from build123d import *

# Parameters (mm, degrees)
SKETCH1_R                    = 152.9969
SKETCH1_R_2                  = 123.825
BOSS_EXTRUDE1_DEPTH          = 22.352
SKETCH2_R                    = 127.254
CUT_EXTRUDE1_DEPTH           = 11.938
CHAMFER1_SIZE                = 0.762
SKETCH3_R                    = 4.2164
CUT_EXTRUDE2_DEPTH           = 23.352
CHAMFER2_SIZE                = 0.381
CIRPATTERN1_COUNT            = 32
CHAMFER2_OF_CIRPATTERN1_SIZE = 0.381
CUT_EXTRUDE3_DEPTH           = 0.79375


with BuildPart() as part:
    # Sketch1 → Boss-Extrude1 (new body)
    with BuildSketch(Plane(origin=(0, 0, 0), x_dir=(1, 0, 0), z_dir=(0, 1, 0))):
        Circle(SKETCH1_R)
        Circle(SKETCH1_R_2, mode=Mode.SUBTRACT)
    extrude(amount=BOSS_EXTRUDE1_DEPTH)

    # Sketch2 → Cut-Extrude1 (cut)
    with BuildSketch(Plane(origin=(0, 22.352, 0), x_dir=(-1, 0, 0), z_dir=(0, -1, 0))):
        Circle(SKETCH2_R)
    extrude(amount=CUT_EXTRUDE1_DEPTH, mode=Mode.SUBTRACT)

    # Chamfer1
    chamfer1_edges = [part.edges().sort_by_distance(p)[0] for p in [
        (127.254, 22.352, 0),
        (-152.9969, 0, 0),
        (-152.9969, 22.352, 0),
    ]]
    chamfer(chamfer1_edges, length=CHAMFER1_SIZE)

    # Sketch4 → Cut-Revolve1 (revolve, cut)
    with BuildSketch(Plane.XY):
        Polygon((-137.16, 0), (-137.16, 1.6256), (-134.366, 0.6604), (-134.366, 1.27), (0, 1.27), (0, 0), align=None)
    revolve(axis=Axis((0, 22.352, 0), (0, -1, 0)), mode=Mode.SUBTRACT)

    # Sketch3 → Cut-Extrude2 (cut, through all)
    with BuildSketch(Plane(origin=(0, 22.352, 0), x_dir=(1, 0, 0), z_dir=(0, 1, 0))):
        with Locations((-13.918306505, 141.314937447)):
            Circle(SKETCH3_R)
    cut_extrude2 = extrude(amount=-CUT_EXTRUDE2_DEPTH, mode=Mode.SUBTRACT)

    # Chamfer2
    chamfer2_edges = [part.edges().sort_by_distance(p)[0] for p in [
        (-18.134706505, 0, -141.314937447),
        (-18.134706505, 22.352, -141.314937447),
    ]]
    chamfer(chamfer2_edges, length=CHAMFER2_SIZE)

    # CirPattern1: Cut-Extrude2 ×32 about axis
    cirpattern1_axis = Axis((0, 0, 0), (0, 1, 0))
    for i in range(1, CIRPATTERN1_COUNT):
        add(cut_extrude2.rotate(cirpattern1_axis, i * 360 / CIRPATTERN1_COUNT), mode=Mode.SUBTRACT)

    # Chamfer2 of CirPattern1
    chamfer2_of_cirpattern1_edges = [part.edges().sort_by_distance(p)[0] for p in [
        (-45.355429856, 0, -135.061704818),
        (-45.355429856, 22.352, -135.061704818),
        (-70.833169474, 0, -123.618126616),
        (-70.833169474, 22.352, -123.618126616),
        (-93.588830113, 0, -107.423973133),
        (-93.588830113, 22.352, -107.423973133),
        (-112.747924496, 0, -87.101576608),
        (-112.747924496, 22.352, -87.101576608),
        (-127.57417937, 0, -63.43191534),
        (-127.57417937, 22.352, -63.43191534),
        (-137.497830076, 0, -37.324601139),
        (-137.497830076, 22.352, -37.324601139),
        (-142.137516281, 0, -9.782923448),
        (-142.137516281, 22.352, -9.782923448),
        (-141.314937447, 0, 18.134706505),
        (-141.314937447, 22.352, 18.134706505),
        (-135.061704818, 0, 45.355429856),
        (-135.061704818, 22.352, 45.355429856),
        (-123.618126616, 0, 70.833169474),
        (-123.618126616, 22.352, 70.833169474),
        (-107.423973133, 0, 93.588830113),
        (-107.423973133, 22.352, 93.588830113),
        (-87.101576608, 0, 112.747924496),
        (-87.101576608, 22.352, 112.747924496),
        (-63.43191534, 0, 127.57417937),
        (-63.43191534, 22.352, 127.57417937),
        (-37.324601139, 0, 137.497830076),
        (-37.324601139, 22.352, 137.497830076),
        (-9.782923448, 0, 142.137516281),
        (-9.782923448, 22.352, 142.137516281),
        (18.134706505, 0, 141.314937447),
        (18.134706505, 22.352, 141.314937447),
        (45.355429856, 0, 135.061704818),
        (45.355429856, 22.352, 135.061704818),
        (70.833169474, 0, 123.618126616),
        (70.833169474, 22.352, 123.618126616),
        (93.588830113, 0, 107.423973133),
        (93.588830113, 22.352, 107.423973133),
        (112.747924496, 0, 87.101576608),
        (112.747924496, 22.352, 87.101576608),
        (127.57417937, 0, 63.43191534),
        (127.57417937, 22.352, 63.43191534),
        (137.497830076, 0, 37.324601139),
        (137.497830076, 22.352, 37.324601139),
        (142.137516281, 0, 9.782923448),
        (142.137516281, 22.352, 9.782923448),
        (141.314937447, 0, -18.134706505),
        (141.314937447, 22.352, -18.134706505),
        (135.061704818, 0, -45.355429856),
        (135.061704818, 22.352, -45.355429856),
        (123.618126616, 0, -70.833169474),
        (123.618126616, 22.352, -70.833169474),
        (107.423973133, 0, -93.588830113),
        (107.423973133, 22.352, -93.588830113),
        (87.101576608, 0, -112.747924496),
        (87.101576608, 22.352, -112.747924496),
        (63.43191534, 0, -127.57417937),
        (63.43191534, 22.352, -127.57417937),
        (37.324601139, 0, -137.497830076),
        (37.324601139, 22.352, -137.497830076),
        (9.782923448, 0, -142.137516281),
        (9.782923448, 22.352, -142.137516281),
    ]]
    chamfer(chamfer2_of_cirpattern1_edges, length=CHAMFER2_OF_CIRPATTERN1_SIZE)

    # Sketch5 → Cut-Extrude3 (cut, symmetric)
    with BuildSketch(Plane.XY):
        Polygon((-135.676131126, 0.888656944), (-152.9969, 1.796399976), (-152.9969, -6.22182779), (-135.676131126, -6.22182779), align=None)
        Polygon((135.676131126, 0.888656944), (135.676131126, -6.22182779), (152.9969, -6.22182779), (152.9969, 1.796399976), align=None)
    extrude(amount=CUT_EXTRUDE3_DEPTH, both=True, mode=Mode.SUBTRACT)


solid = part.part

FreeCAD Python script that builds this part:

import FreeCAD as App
import Part
import Sketcher
Q = App.Units.Quantity


def edges_at(feature, points):
    """Names of the edges that pass closest to the given points."""
    edges = feature.Shape.Edges
    near = lambda p: min(range(len(edges)), key=lambda i: edges[i].distToShape(Part.Vertex(*p))[0])
    return sorted({f"Edge{near(p) + 1}" for p in points})

doc = App.newDocument("Part")
body = doc.addObject("PartDesign::Body", "Body")

# Sketch on XZ plane
sketch1 = body.newObject("Sketcher::SketchObject", "Sketch")
sketch1.AttachmentSupport = (doc.getObject("XZ_Plane"), [""])
sketch1.MapMode = "FlatFace"
sketch1.addGeometry(Part.Circle(App.Vector(0, 0, 0), App.Vector(0, 0, 1), 153), False)
sketch1.addGeometry(Part.Circle(App.Vector(0, 0, 0), App.Vector(0, 0, 1), 124), False)
sketch1.addConstraint(Sketcher.Constraint("Coincident", 0, 3, -1, 1))
sketch1.addConstraint(Sketcher.Constraint("Coincident", 1, 3, -1, 1))
sketch1.addConstraint(Sketcher.Constraint("Diameter", 1, Q("9.75 in")))
sketch1.addConstraint(Sketcher.Constraint("Diameter", 0, Q("12.047 in")))
pad1 = body.newObject("PartDesign::Pad", "Pad")
pad1.Profile = sketch1
pad1.Length = Q("0.88 in")
pad1.Reversed = True

# Sketch on XZ plane
sketch2 = body.newObject("Sketcher::SketchObject", "Sketch001")
sketch2.AttachmentSupport = (doc.getObject("XZ_Plane"), [""])
sketch2.MapMode = "FlatFace"
sketch2.AttachmentOffset = App.Placement(App.Vector(0, 0, -0.88 * 25.4), App.Rotation())
sketch2.addGeometry(Part.Circle(App.Vector(0, 0, 0), App.Vector(0, 0, 1), 127), False)
sketch2.addConstraint(Sketcher.Constraint("Coincident", 0, 3, -1, 1))
sketch2.addConstraint(Sketcher.Constraint("Diameter", 0, Q("10.02 in")))
pocket1 = body.newObject("PartDesign::Pocket", "Pocket")
pocket1.Profile = sketch2
pocket1.Length = Q("0.47 in")
pocket1.Reversed = True
doc.recompute()

chamfer = body.newObject("PartDesign::Chamfer", "Chamfer")
chamfer.Base = (pocket1, edges_at(pocket1, [(127.254, 22.352, 0), (-152.997, 0, 0), (-152.997, 22.352, 0)]))
chamfer.Size = Q("0.03 in")

# Sketch on XY plane
sketch3 = body.newObject("Sketcher::SketchObject", "Sketch002")
sketch3.AttachmentSupport = (doc.getObject("XY_Plane"), [""])
sketch3.MapMode = "FlatFace"
sketch3.addGeometry(Part.LineSegment(App.Vector(-137.2, 1.6, 0), App.Vector(-137.2, 0, 0)), False)
sketch3.addGeometry(Part.LineSegment(App.Vector(-137.2, 0, 0), App.Vector(0, 0, 0)), False)
sketch3.addGeometry(Part.LineSegment(App.Vector(0, 0, 0), App.Vector(0, 1.3, 0)), False)
sketch3.addGeometry(Part.LineSegment(App.Vector(0, 1.3, 0), App.Vector(-134.4, 1.3, 0)), False)
sketch3.addGeometry(Part.LineSegment(App.Vector(-134.4, 1.3, 0), App.Vector(-134.4, 0.7, 0)), False)
sketch3.addGeometry(Part.LineSegment(App.Vector(-134.4, 0.7, 0), App.Vector(-137.2, 1.6, 0)), False)
sketch3.addConstraint(Sketcher.Constraint("Coincident", 0, 2, 1, 1))
sketch3.addConstraint(Sketcher.Constraint("Coincident", 1, 2, 2, 1))
sketch3.addConstraint(Sketcher.Constraint("Coincident", 2, 2, 3, 1))
sketch3.addConstraint(Sketcher.Constraint("Coincident", 3, 2, 4, 1))
sketch3.addConstraint(Sketcher.Constraint("Coincident", 4, 2, 5, 1))
sketch3.addConstraint(Sketcher.Constraint("Coincident", 5, 2, 0, 1))
sketch3.addConstraint(Sketcher.Constraint("Vertical", 0))
sketch3.addConstraint(Sketcher.Constraint("Horizontal", 1))
sketch3.addConstraint(Sketcher.Constraint("Vertical", 2))
sketch3.addConstraint(Sketcher.Constraint("Horizontal", 3))
sketch3.addConstraint(Sketcher.Constraint("Vertical", 4))
sketch3.addConstraint(Sketcher.Constraint("Coincident", 1, 2, -1, 1))
sketch3.addConstraint(Sketcher.Constraint("DistanceX", 1, 1, 1, 2, Q("5.4 in")))
sketch3.addConstraint(Sketcher.Constraint("DistanceX", 3, 2, 3, 1, Q("5.29 in")))
sketch3.addConstraint(Sketcher.Constraint("DistanceY", 2, 1, 2, 2, Q("0.05 in")))
sketch3.addConstraint(Sketcher.Constraint("DistanceY", 0, 2, 0, 1, Q("0.064 in")))
sketch3.addConstraint(Sketcher.Constraint("DistanceY", 4, 2, 4, 1, Q("0.024 in")))
groove = body.newObject("PartDesign::Groove", "Groove")
groove.Profile = sketch3
groove.ReferenceAxis = (sketch3, ["V_Axis"])
groove.Angle = 360

# Sketch on XZ plane
sketch4 = body.newObject("Sketcher::SketchObject", "Sketch003")
sketch4.AttachmentSupport = (doc.getObject("XZ_Plane"), [""])
sketch4.MapMode = "FlatFace"
sketch4.AttachmentOffset = App.Placement(App.Vector(0, 0, -0.88 * 25.4), App.Rotation())
sketch4.addGeometry(Part.Circle(App.Vector(-13.9, -141.3, 0), App.Vector(0, 0, 1), 4.2), False)
sketch4.addConstraint(Sketcher.Constraint("Diameter", 0, Q("0.332 in")))
sketch4.addConstraint(Sketcher.Constraint("DistanceX", 0, 3, -1, 1, 13.918307))
sketch4.addConstraint(Sketcher.Constraint("DistanceY", 0, 3, -1, 1, 141.314937))
pocket2 = body.newObject("PartDesign::Pocket", "Pocket001")
pocket2.Profile = sketch4
pocket2.Type = "ThroughAll"
pocket2.Reversed = True
doc.recompute()

chamfer2 = body.newObject("PartDesign::Chamfer", "Chamfer001")
chamfer2.Base = (pocket2, edges_at(pocket2, [(-18.135, 0, -141.315), (-18.135, 22.352, -141.315)]))
chamfer2.Size = Q("0.015 in")
doc.recompute()

polarpattern = body.newObject("PartDesign::PolarPattern", "PolarPattern")
polarpattern.Originals = [pocket2]
polarpattern.Axis = (doc.getObject("Y_Axis"), [""])
polarpattern.Angle = 360
polarpattern.Occurrences = 32
body.Tip = polarpattern
doc.recompute()

chamfer3 = body.newObject("PartDesign::Chamfer", "Chamfer002")
chamfer3.Base = (polarpattern, edges_at(polarpattern, [
    (-45.355, 0, -135.062),
    (-45.355, 22.352, -135.062),
    (-70.833, 0, -123.618),
    (-70.833, 22.352, -123.618),
    (-93.589, 0, -107.424),
    (-93.589, 22.352, -107.424),
    (-112.748, 0, -87.102),
    (-112.748, 22.352, -87.102),
    (-127.574, 0, -63.432),
    (-127.574, 22.352, -63.432),
    (-137.498, 0, -37.325),
    (-137.498, 22.352, -37.325),
    (-142.138, 0, -9.783),
    (-142.138, 22.352, -9.783),
    (-141.315, 0, 18.135),
    (-141.315, 22.352, 18.135),
    (-135.062, 0, 45.355),
    (-135.062, 22.352, 45.355),
    (-123.618, 0, 70.833),
    (-123.618, 22.352, 70.833),
    (-107.424, 0, 93.589),
    (-107.424, 22.352, 93.589),
    (-87.102, 0, 112.748),
    (-87.102, 22.352, 112.748),
    (-63.432, 0, 127.574),
    (-63.432, 22.352, 127.574),
    (-37.325, 0, 137.498),
    (-37.325, 22.352, 137.498),
    (-9.783, 0, 142.138),
    (-9.783, 22.352, 142.138),
    (18.135, 0, 141.315),
    (18.135, 22.352, 141.315),
    (45.355, 0, 135.062),
    (45.355, 22.352, 135.062),
    (70.833, 0, 123.618),
    (70.833, 22.352, 123.618),
    (93.589, 0, 107.424),
    (93.589, 22.352, 107.424),
    (112.748, 0, 87.102),
    (112.748, 22.352, 87.102),
    (127.574, 0, 63.432),
    (127.574, 22.352, 63.432),
    (137.498, 0, 37.325),
    (137.498, 22.352, 37.325),
    (142.138, 0, 9.783),
    (142.138, 22.352, 9.783),
    (141.315, 0, -18.135),
    (141.315, 22.352, -18.135),
    (135.062, 0, -45.355),
    (135.062, 22.352, -45.355),
    (123.618, 0, -70.833),
    (123.618, 22.352, -70.833),
    (107.424, 0, -93.589),
    (107.424, 22.352, -93.589),
    (87.102, 0, -112.748),
    (87.102, 22.352, -112.748),
    (63.432, 0, -127.574),
    (63.432, 22.352, -127.574),
    (37.325, 0, -137.498),
    (37.325, 22.352, -137.498),
    (9.783, 0, -142.138),
    (9.783, 22.352, -142.138),
]))
chamfer3.Size = Q("0.015 in")

# Sketch on XY plane
sketch5 = body.newObject("Sketcher::SketchObject", "Sketch004")
sketch5.AttachmentSupport = (doc.getObject("XY_Plane"), [""])
sketch5.MapMode = "FlatFace"
sketch5.addGeometry(Part.LineSegment(App.Vector(-136, 1, 0), App.Vector(-153, 2, 0)), False)
sketch5.addGeometry(Part.LineSegment(App.Vector(-153, 2, 0), App.Vector(-153, -6, 0)), False)
sketch5.addGeometry(Part.LineSegment(App.Vector(-153, -6, 0), App.Vector(-136, -6, 0)), False)
sketch5.addGeometry(Part.LineSegment(App.Vector(-136, -6, 0), App.Vector(-136, 1, 0)), False)
sketch5.addGeometry(Part.LineSegment(App.Vector(136, 1, 0), App.Vector(136, -6, 0)), False)
sketch5.addGeometry(Part.LineSegment(App.Vector(136, -6, 0), App.Vector(153, -6, 0)), False)
sketch5.addGeometry(Part.LineSegment(App.Vector(153, -6, 0), App.Vector(153, 2, 0)), False)
sketch5.addGeometry(Part.LineSegment(App.Vector(153, 2, 0), App.Vector(136, 1, 0)), False)
sketch5.addConstraint(Sketcher.Constraint("Coincident", 0, 2, 1, 1))
sketch5.addConstraint(Sketcher.Constraint("Coincident", 1, 2, 2, 1))
sketch5.addConstraint(Sketcher.Constraint("Coincident", 2, 2, 3, 1))
sketch5.addConstraint(Sketcher.Constraint("Coincident", 3, 2, 0, 1))
sketch5.addConstraint(Sketcher.Constraint("Coincident", 4, 2, 5, 1))
sketch5.addConstraint(Sketcher.Constraint("Coincident", 5, 2, 6, 1))
sketch5.addConstraint(Sketcher.Constraint("Coincident", 6, 2, 7, 1))
sketch5.addConstraint(Sketcher.Constraint("Coincident", 7, 2, 4, 1))
sketch5.addConstraint(Sketcher.Constraint("Vertical", 1))
sketch5.addConstraint(Sketcher.Constraint("Horizontal", 2))
sketch5.addConstraint(Sketcher.Constraint("Vertical", 3))
sketch5.addConstraint(Sketcher.Constraint("Vertical", 4))
sketch5.addConstraint(Sketcher.Constraint("Horizontal", 5))
sketch5.addConstraint(Sketcher.Constraint("Vertical", 6))
sketch5.addConstraint(Sketcher.Constraint("Symmetric", 2, 2, 4, 2, -2))
sketch5.addConstraint(Sketcher.Constraint("Symmetric", 0, 2, 6, 2, -2))
sketch5.addConstraint(Sketcher.Constraint("Horizontal", 3, 2, 7, 2))
sketch5.addConstraint(Sketcher.Constraint("Angle", 0, Q("177 deg")))
sketch5.addConstraint(Sketcher.Constraint("DistanceX", 1, 2, 5, 2, Q("12.047 in")))
sketch5.addConstraint(Sketcher.Constraint("DistanceX", 2, 1, 2, 2, 17.320769))
sketch5.addConstraint(Sketcher.Constraint("DistanceY", -1, 1, 0, 2, 1.7964))
sketch5.addConstraint(Sketcher.Constraint("DistanceY", 1, 2, 1, 1, 8.018228))
pocket3 = body.newObject("PartDesign::Pocket", "Pocket002")
pocket3.Profile = sketch5
pocket3.Length = Q("0.0625 in")
pocket3.Midplane = True

doc.recompute()
